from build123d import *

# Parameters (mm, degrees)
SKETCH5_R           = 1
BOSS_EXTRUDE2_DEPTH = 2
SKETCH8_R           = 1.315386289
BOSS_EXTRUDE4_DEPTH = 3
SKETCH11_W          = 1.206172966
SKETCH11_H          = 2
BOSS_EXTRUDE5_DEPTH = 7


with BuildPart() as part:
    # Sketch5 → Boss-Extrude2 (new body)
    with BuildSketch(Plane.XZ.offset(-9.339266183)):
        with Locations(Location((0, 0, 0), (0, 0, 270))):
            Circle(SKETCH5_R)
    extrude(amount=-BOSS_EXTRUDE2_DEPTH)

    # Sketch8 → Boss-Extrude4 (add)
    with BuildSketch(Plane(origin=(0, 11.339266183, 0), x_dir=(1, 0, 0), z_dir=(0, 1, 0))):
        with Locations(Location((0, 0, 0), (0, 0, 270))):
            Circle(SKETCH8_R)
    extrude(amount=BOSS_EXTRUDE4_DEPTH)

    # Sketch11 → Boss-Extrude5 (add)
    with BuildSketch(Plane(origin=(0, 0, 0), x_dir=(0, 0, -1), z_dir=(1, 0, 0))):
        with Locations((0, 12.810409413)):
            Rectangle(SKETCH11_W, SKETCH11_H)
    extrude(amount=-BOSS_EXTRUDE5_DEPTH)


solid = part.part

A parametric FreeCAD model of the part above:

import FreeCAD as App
import Part
import Sketcher

V = App.Vector


def add_polygon(sketch, points):
    """Adds a closed chain of lines whose ends are joined by coincident constraints."""
    first, n = sketch.GeometryCount, len(points)
    for a, b in zip(points, points[1:] + points[:1]):
        sketch.addGeometry(Part.LineSegment(App.Vector(*a, 0), App.Vector(*b, 0)), False)
    for i in range(n):
        sketch.addConstraint(Sketcher.Constraint("Coincident", first + i, 2, first + (i + 1) % n, 1))

doc = App.newDocument("Part")
body = doc.addObject("PartDesign::Body", "Body")

sketch1 = body.newObject("Sketcher::SketchObject", "Sketch")
sketch1.AttachmentSupport = (doc.getObject("XZ_Plane"), [""])
sketch1.MapMode = "FlatFace"
sketch1.AttachmentOffset = App.Placement(V(0, 0, -9.339266), App.Rotation())
sketch1.addGeometry(Part.Circle(V(0, 0, 0), V(0, 0, 1), 1), False)
sketch1.addConstraint([
    Sketcher.Constraint("Coincident", 0, 3, -1, 1),
    Sketcher.Constraint("Diameter", 0, 2.0),
])
pad1 = body.newObject("PartDesign::Pad", "Pad")
pad1.Profile = sketch1
pad1.Length = 2
pad1.Reversed = True

sketch2 = body.newObject("Sketcher::SketchObject", "Sketch001")
sketch2.AttachmentSupport = (doc.getObject("XZ_Plane"), [""])
sketch2.MapMode = "FlatFace"
sketch2.AttachmentOffset = App.Placement(V(0, 0, -11.339266), App.Rotation())
sketch2.addGeometry(Part.Circle(V(0, 0, 0), V(0, 0, 1), 1.3), False)
sketch2.addConstraint([
    Sketcher.Constraint("Coincident", 0, 3, -1, 1),
    Sketcher.Constraint("Diameter", 0, 2.630773),
])
pad2 = body.newObject("PartDesign::Pad", "Pad001")
pad2.Profile = sketch2
pad2.Length = 3
pad2.Reversed = True

sketch3 = body.newObject("Sketcher::SketchObject", "Sketch002")
sketch3.AttachmentSupport = (doc.getObject("YZ_Plane"), [""])
sketch3.MapMode = "FlatFace"
add_polygon(sketch3, [(13.8, 0.6), (11.8, 0.6), (11.8, -0.6), (13.8, -0.6)])
sketch3.addConstraint([
    Sketcher.Constraint("Horizontal", 0),
    Sketcher.Constraint("Vertical", 1),
    Sketcher.Constraint("Horizontal", 2),
    Sketcher.Constraint("Vertical", 3),
    Sketcher.Constraint("DistanceX", 0, 2, 0, 1, 2.0),
    Sketcher.Constraint("DistanceY", 1, 2, 1, 1, 1.206173),
    Sketcher.Constraint("DistanceX", -1, 1, 0, 2, 11.810409),
    Sketcher.Constraint("DistanceY", -1, 1, 0, 2, 0.603086),
])
pad3 = body.newObject("PartDesign::Pad", "Pad002")
pad3.Profile = sketch3
pad3.Length = 7
pad3.Reversed = True

doc.recompute()
